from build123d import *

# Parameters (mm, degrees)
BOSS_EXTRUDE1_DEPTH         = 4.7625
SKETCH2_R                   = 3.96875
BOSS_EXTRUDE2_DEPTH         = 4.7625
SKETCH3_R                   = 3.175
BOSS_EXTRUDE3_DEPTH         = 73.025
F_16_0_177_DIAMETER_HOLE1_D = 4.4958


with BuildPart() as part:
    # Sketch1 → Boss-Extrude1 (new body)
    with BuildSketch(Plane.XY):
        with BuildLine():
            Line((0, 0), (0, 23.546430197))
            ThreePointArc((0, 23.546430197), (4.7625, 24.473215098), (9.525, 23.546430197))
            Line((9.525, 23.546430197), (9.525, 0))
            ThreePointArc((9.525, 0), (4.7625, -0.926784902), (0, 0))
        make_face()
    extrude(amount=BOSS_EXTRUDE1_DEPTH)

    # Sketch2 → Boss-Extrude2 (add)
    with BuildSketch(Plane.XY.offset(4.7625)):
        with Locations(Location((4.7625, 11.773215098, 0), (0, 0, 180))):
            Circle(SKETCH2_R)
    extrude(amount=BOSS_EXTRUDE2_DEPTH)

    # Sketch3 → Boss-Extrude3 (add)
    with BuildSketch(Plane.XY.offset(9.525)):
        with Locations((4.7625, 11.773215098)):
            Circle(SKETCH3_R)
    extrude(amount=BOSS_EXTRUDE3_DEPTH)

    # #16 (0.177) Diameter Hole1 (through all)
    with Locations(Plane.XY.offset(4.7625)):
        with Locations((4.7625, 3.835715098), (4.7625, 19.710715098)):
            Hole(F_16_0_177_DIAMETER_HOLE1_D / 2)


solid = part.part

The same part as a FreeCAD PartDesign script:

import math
import FreeCAD as App
import Part
import Sketcher
from FreeCAD import Vector
Q = App.Units.Quantity

doc = App.newDocument("Part")
params = doc.addObject("Spreadsheet::Sheet", "Params")
for row, (alias, value) in enumerate([
    ("sketch1_radius", "0.5 in"),
    ("pad1_length", "0.1875 in"),
    ("sketch2_diameter", "0.3125 in"),
    ("pad2_length", "0.1875 in"),
    ("sketch3_diameter", "0.25 in"),
    ("pad3_length", "2.875 in"),
    ("sketch4_diameter", "0.177 in"),
    ("hole_diameter", "0.177 in"),
], start=1):
    params.set(f"A{row}", alias)
    params.set(f"B{row}", "=" + value)
    params.setAlias(f"B{row}", alias)

body = doc.addObject("PartDesign::Body", "Body")

# Sketch on XY plane
sketch1 = doc.addObject("Sketcher::SketchObject", "Sketch")
body.addObject(sketch1)
sketch1.AttachmentSupport = (doc.XY_Plane, [""])
sketch1.MapMode = "FlatFace"
sketch1.addGeometry([
    Part.LineSegment(Vector(0, 24, 0), Vector(0, 0, 0)),
    Part.ArcOfCircle(Part.Circle(Vector(5, 12, 0), Vector(0, 0, 1), 13), math.radians(-112), math.radians(-68)),
    Part.LineSegment(Vector(10, 0, 0), Vector(10, 24, 0)),
    Part.ArcOfCircle(Part.Circle(Vector(5, 12, 0), Vector(0, 0, 1), 13), math.radians(68), math.radians(112)),
], False)
sketch1.addConstraint([
    Sketcher.Constraint("Coincident", 0, 2, 1, 1),
    Sketcher.Constraint("Coincident", 1, 2, 2, 1),
    Sketcher.Constraint("Coincident", 2, 2, 3, 1),
    Sketcher.Constraint("Coincident", 3, 2, 0, 1),
    Sketcher.Constraint("Vertical", 0),
    Sketcher.Constraint("Vertical", 2),
    Sketcher.Constraint("Coincident", 0, 2, -1, 1),
    Sketcher.Constraint("Coincident", 3, 3, 1, 3),
    Sketcher.Constraint("Equal", 1, 3),
    Sketcher.Constraint("PointOnObject", 1, 2, -1),
    Sketcher.Constraint("Radius", 1, Q("0.5 in")),
    Sketcher.Constraint("DistanceX", -1, 1, 1, 3, Q("0.1875 in")),
])
sketch1.setExpression("Constraints[10]", "Params.sketch1_radius")
pad1 = doc.addObject("PartDesign::Pad", "Pad")
body.addObject(pad1)
pad1.Profile = sketch1
pad1.setExpression("Length", "Params.pad1_length")

# Sketch on XY plane
sketch2 = doc.addObject("Sketcher::SketchObject", "Sketch001")
body.addObject(sketch2)
sketch2.AttachmentSupport = (doc.XY_Plane, [""])
sketch2.MapMode = "FlatFace"
sketch2.AttachmentOffset = App.Placement(Vector(0, 0, 0.1875 * 25.4), App.Rotation())
sketch2.addGeometry(Part.Circle(Vector(4.8, 11.8, 0), Vector(0, 0, 1), 4), False)
sketch2.addConstraint([
    Sketcher.Constraint("Diameter", 0, Q("0.3125 in")),
    Sketcher.Constraint("DistanceX", -1, 1, 0, 3, Q("0.1875 in")),
    Sketcher.Constraint("DistanceY", -1, 1, 0, 3, Q("11.773215 mm")),
])
sketch2.setExpression("Constraints[0]", "Params.sketch2_diameter")
pad2 = doc.addObject("PartDesign::Pad", "Pad001")
body.addObject(pad2)
pad2.Profile = sketch2
pad2.setExpression("Length", "Params.pad2_length")

# Sketch on XY plane
sketch3 = doc.addObject("Sketcher::SketchObject", "Sketch002")
body.addObject(sketch3)
sketch3.AttachmentSupport = (doc.XY_Plane, [""])
sketch3.MapMode = "FlatFace"
sketch3.AttachmentOffset = App.Placement(Vector(0, 0, 0.375 * 25.4), App.Rotation())
sketch3.addGeometry(Part.Circle(Vector(4.8, 11.8, 0), Vector(0, 0, 1), 3.2), False)
sketch3.addConstraint([
    Sketcher.Constraint("Diameter", 0, Q("0.25 in")),
    Sketcher.Constraint("DistanceX", -1, 1, 0, 3, Q("0.1875 in")),
    Sketcher.Constraint("DistanceY", -1, 1, 0, 3, Q("11.773215 mm")),
])
sketch3.setExpression("Constraints[0]", "Params.sketch3_diameter")
pad3 = doc.addObject("PartDesign::Pad", "Pad002")
body.addObject(pad3)
pad3.Profile = sketch3
pad3.setExpression("Length", "Params.pad3_length")

# Sketch on XY plane
sketch4 = doc.addObject("Sketcher::SketchObject", "Sketch003")
body.addObject(sketch4)
sketch4.AttachmentSupport = (doc.XY_Plane, [""])
sketch4.MapMode = "FlatFace"
sketch4.AttachmentOffset = App.Placement(Vector(0, 0, 0.1875 * 25.4), App.Rotation())
sketch4.addGeometry([
    Part.Circle(Vector(4.8, 3.8, 0), Vector(0, 0, 1), 2.2),
    Part.Circle(Vector(4.8, 19.7, 0), Vector(0, 0, 1), 2.2),
], False)
sketch4.addConstraint([
    Sketcher.Constraint("Equal", 0, 1),
    Sketcher.Constraint("Vertical", 0, 3, 1, 3),
    Sketcher.Constraint("Diameter", 0, Q("0.177 in")),
    Sketcher.Constraint("DistanceX", -1, 1, 0, 3, Q("0.1875 in")),
    Sketcher.Constraint("DistanceY", 0, 3, 1, 3, Q("0.625 in")),
    Sketcher.Constraint("DistanceY", -1, 1, 0, 3, Q("3.835715 mm")),
])
sketch4.setExpression("Constraints[2]", "Params.sketch4_diameter")
doc.recompute()
hole = doc.addObject("PartDesign::Hole", "Hole")
body.addObject(hole)
hole.Profile = sketch4
hole.ThreadType = "None"
hole.setExpression("Diameter", "Params.hole_diameter")
hole.DepthType = "ThroughAll"

doc.recompute()
